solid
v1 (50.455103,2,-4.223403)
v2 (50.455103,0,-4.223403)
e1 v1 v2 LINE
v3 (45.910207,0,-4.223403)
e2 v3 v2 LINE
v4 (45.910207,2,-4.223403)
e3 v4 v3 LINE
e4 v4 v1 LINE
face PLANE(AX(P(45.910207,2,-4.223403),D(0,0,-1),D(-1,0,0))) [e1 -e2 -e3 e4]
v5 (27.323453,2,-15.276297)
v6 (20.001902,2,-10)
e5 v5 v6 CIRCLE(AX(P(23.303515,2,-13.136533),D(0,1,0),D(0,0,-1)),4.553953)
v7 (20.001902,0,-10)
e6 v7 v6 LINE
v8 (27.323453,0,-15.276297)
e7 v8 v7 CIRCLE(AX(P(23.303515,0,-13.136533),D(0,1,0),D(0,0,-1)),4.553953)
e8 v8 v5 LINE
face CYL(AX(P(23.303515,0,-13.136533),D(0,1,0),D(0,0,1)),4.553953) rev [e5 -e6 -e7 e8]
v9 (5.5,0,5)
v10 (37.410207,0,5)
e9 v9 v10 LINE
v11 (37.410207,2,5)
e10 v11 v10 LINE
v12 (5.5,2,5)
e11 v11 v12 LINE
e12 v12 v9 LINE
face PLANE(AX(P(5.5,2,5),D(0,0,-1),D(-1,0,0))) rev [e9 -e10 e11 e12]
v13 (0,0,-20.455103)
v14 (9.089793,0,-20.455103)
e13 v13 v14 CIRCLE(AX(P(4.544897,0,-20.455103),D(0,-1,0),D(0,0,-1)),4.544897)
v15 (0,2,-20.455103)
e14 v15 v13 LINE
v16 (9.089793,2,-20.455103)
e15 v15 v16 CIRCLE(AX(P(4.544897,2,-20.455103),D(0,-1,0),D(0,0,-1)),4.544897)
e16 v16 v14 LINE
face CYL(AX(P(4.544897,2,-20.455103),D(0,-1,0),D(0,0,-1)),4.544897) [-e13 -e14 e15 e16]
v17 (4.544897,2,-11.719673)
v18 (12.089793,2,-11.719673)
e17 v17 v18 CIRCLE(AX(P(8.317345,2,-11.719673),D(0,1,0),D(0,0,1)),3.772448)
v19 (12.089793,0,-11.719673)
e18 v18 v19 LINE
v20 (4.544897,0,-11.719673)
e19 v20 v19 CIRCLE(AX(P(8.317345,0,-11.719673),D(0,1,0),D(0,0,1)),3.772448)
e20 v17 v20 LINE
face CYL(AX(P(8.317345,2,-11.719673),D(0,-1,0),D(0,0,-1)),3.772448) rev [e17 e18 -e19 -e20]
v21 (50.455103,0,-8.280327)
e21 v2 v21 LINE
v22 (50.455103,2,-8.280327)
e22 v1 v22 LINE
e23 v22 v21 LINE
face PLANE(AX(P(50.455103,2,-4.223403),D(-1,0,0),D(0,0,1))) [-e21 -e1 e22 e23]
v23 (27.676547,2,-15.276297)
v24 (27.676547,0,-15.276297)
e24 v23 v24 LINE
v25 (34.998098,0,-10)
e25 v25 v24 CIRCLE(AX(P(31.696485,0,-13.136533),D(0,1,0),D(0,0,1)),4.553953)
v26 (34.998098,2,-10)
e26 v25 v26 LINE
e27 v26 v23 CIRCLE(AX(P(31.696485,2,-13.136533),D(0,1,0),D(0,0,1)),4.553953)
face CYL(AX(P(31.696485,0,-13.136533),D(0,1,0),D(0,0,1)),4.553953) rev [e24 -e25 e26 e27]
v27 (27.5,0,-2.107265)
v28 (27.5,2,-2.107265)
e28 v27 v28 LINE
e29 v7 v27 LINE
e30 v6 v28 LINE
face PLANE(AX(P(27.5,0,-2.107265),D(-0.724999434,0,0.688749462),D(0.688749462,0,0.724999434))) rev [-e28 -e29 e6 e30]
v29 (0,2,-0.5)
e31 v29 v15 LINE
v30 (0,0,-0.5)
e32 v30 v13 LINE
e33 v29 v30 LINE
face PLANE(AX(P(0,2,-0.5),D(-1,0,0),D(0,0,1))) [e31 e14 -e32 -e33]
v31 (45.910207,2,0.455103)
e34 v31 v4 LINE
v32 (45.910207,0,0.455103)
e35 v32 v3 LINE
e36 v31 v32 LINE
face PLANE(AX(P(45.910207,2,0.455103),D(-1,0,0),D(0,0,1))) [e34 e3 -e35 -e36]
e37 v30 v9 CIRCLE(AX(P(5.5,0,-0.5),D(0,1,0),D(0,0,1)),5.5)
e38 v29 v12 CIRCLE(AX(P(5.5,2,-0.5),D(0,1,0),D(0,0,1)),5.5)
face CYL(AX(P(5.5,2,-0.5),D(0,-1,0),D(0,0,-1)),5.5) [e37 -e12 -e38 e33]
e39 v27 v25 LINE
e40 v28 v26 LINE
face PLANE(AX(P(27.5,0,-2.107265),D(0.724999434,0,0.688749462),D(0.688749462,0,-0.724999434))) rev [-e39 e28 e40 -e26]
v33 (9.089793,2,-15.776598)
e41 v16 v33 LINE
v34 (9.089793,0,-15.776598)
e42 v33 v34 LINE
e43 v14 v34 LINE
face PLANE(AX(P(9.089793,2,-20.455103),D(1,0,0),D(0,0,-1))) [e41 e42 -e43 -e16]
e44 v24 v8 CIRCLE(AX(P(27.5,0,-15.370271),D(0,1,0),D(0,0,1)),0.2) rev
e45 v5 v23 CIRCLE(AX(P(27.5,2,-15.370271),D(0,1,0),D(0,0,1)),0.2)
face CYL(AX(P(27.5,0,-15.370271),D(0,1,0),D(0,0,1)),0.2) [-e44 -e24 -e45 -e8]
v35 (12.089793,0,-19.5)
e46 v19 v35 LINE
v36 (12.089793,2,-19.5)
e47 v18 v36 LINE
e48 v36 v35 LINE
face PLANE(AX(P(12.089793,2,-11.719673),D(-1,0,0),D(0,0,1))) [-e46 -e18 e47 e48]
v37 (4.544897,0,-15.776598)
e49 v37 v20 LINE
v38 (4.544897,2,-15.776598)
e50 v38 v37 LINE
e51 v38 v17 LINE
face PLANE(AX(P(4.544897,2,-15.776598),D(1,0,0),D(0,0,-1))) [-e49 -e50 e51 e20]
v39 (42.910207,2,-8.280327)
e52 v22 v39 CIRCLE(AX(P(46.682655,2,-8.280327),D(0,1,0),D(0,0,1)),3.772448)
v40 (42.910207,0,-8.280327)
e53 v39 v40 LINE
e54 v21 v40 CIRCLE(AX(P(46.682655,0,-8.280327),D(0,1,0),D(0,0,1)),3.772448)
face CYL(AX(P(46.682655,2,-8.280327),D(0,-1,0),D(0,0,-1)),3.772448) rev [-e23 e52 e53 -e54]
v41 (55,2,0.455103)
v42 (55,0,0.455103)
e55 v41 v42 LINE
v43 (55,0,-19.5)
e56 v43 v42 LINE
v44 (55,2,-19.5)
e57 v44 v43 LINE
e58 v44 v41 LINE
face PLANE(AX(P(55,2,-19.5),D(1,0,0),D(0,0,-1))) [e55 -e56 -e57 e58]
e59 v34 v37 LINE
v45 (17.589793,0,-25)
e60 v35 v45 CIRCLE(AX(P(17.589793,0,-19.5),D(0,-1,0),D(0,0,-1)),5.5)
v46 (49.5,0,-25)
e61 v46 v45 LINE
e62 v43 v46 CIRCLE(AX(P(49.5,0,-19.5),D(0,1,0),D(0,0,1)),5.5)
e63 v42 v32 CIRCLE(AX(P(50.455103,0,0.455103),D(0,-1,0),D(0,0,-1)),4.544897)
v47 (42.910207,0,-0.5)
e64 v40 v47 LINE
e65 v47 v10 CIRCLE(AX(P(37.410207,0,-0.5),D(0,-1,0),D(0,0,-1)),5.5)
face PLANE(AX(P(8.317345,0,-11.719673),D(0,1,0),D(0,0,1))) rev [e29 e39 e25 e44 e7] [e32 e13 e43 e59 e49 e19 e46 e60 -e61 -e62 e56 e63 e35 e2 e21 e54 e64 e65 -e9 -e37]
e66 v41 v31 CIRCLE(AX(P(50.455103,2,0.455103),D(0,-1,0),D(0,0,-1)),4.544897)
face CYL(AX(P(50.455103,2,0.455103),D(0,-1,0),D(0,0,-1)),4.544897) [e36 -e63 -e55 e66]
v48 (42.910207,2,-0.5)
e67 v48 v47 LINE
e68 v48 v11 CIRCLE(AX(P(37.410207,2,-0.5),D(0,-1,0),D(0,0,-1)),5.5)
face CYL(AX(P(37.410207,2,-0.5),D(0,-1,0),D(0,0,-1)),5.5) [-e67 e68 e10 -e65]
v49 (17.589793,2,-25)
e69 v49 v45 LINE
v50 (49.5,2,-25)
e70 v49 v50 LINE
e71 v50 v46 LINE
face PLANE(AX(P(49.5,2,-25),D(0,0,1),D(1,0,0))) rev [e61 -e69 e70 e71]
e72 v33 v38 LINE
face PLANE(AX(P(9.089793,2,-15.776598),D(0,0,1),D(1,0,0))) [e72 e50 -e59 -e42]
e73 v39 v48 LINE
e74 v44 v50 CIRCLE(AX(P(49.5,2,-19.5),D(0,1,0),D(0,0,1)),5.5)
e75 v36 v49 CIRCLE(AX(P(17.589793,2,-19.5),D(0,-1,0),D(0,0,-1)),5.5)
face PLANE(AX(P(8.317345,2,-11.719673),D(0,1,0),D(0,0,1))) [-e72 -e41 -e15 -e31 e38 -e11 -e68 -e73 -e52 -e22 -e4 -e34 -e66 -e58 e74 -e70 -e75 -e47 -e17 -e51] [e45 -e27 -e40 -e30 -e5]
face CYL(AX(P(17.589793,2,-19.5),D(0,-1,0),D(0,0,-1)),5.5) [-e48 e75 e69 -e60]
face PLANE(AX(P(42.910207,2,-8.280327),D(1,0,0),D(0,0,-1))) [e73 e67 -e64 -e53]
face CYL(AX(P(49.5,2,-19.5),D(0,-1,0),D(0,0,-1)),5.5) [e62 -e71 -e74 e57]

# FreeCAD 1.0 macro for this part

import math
import FreeCAD as App
import Part
import Sketcher


def edges_at(feature, points):
    """Names of the edges that pass closest to the given points."""
    edges = feature.Shape.Edges
    near = lambda p: min(range(len(edges)), key=lambda i: edges[i].distToShape(Part.Vertex(*p))[0])
    return sorted({f"Edge{near(p) + 1}" for p in points})

doc = App.newDocument("Part")
body = doc.addObject("PartDesign::Body", "Body")

sketch1 = body.newObject("Sketcher::SketchObject", "Sketch")
sketch1.AttachmentSupport = (doc.getObject("XZ_Plane"), [""])
sketch1.MapMode = "FlatFace"
sketch1.addGeometry([
    Part.LineSegment(App.Vector(0, -20.5, 0), App.Vector(0, -0.5, 0)),
    Part.ArcOfCircle(Part.Circle(App.Vector(5.5, -0.5, 0), App.Vector(0, 0, 1), 5.5), math.radians(90), math.radians(180)),
    Part.LineSegment(App.Vector(5.5, 5, 0), App.Vector(37.4, 5, 0)),
    Part.ArcOfCircle(Part.Circle(App.Vector(37.4, -0.5, 0), App.Vector(0, 0, 1), 5.5), math.radians(0), math.radians(90)),
    Part.LineSegment(App.Vector(42.9, -0.5, 0), App.Vector(42.9, -8.3, 0)),
    Part.ArcOfCircle(Part.Circle(App.Vector(46.7, -8.3, 0), App.Vector(0, 0, 1), 3.8), math.radians(180), math.radians(360)),
    Part.LineSegment(App.Vector(50.5, -8.3, 0), App.Vector(50.5, -4.2, 0)),
    Part.LineSegment(App.Vector(50.5, -4.2, 0), App.Vector(45.9, -4.2, 0)),
    Part.LineSegment(App.Vector(45.9, -4.2, 0), App.Vector(45.9, 0.5, 0)),
    Part.ArcOfCircle(Part.Circle(App.Vector(50.5, 0.5, 0), App.Vector(0, 0, 1), 4.5), math.radians(0), math.radians(180)),
    Part.LineSegment(App.Vector(55, 0.5, 0), App.Vector(55, -19.5, 0)),
    Part.ArcOfCircle(Part.Circle(App.Vector(49.5, -19.5, 0), App.Vector(0, 0, 1), 5.5), math.radians(-90), math.radians(0)),
    Part.LineSegment(App.Vector(49.5, -25, 0), App.Vector(17.6, -25, 0)),
    Part.ArcOfCircle(Part.Circle(App.Vector(17.6, -19.5, 0), App.Vector(0, 0, 1), 5.5), math.radians(-180), math.radians(-90)),
    Part.LineSegment(App.Vector(12.1, -19.5, 0), App.Vector(12.1, -11.7, 0)),
    Part.ArcOfCircle(Part.Circle(App.Vector(8.3, -11.7, 0), App.Vector(0, 0, 1), 3.8), math.radians(0), math.radians(180)),
    Part.LineSegment(App.Vector(4.5, -11.7, 0), App.Vector(4.5, -15.8, 0)),
    Part.LineSegment(App.Vector(4.5, -15.8, 0), App.Vector(9.1, -15.8, 0)),
    Part.LineSegment(App.Vector(9.1, -15.8, 0), App.Vector(9.1, -20.5, 0)),
    Part.ArcOfCircle(Part.Circle(App.Vector(4.5, -20.5, 0), App.Vector(0, 0, 1), 4.5), math.radians(180), math.radians(360)),
], False)
sketch1.addConstraint([
    Sketcher.Constraint("Tangent", 0, 2, 1, 2),
    Sketcher.Constraint("Tangent", 1, 1, 2, 1),
    Sketcher.Constraint("Tangent", 2, 2, 3, 2),
    Sketcher.Constraint("Tangent", 3, 1, 4, 1),
    Sketcher.Constraint("Tangent", 4, 2, 5, 1),
    Sketcher.Constraint("Tangent", 5, 2, 6, 1),
    Sketcher.Constraint("Coincident", 6, 2, 7, 1),
    Sketcher.Constraint("Coincident", 7, 2, 8, 1),
    Sketcher.Constraint("Tangent", 8, 2, 9, 2),
    Sketcher.Constraint("Tangent", 9, 1, 10, 1),
    Sketcher.Constraint("Tangent", 10, 2, 11, 2),
    Sketcher.Constraint("Tangent", 11, 1, 12, 1),
    Sketcher.Constraint("Tangent", 12, 2, 13, 2),
    Sketcher.Constraint("Tangent", 13, 1, 14, 1),
    Sketcher.Constraint("Tangent", 14, 2, 15, 1),
    Sketcher.Constraint("Tangent", 15, 2, 16, 1),
    Sketcher.Constraint("Coincident", 16, 2, 17, 1),
    Sketcher.Constraint("Coincident", 17, 2, 18, 1),
    Sketcher.Constraint("Tangent", 18, 2, 19, 2),
    Sketcher.Constraint("Tangent", 19, 1, 0, 1),
    Sketcher.Constraint("Vertical", 0),
    Sketcher.Constraint("Horizontal", 2),
    Sketcher.Constraint("Vertical", 4),
    Sketcher.Constraint("Vertical", 6),
    Sketcher.Constraint("Horizontal", 7),
    Sketcher.Constraint("Vertical", 8),
    Sketcher.Constraint("Vertical", 10),
    Sketcher.Constraint("Horizontal", 12),
    Sketcher.Constraint("Vertical", 14),
    Sketcher.Constraint("Vertical", 16),
    Sketcher.Constraint("Horizontal", 17),
    Sketcher.Constraint("Vertical", 18),
    Sketcher.Constraint("Equal", 1, 3),
    Sketcher.Constraint("Equal", 3, 11),
    Sketcher.Constraint("Equal", 11, 13),
    Sketcher.Constraint("Equal", 5, 15),
    Sketcher.Constraint("Equal", 9, 19),
    Sketcher.Constraint("PointOnObject", 0, 2, -2),
    Sketcher.Constraint("Vertical", 9, 3, 5, 2),
    Sketcher.Constraint("Vertical", 19, 3, 15, 2),
    Sketcher.Constraint("Equal", 0, 10),
    Sketcher.Constraint("Equal", 4, 14),
    Sketcher.Constraint("Equal", 6, 16),
    Sketcher.Constraint("Radius", 1, 5.5),
    Sketcher.Constraint("DistanceY", -1, 1, 1, 1, 5.0),
    Sketcher.Constraint("DistanceX", -1, 1, 9, 1, 55.0),
    Sketcher.Constraint("DistanceY", 11, 1, -1, 1, 25.0),
    Sketcher.Constraint("DistanceX", 3, 1, 7, 2, 3.0),
    Sketcher.Constraint("Radius", 5, 3.772448),
    Sketcher.Constraint("DistanceY", 0, 1, 0, 2, 19.955103),
    Sketcher.Constraint("DistanceY", 4, 2, 4, 1, 7.780327),
    Sketcher.Constraint("DistanceY", 6, 1, 6, 2, 4.056924),
])
pad1 = body.newObject("PartDesign::Pad", "Pad")
pad1.Profile = sketch1
pad1.Length = 2
pad1.Reversed = True

sketch2 = body.newObject("Sketcher::SketchObject", "Sketch001")
sketch2.AttachmentSupport = (doc.getObject("XZ_Plane"), [""])
sketch2.MapMode = "FlatFace"
sketch2.AttachmentOffset = App.Placement(App.Vector(0, 0, -2), App.Rotation())
sketch2.addGeometry([
    Part.LineSegment(App.Vector(20, -10, 0), App.Vector(27.5, -2.1, 0)),
    Part.LineSegment(App.Vector(27.5, -2.1, 0), App.Vector(35, -10, 0)),
    Part.ArcOfCircle(Part.Circle(App.Vector(31.7, -13.1, 0), App.Vector(0, 0, 1), 4.6), math.radians(-157), math.radians(44)),
    Part.ArcOfCircle(Part.Circle(App.Vector(23.3, -13.1, 0), App.Vector(0, 0, 1), 4.6), math.radians(136), math.radians(337)),
], False)
sketch2.addConstraint([
    Sketcher.Constraint("Coincident", 0, 2, 1, 1),
    Sketcher.Constraint("Tangent", 1, 2, 2, 2),
    Sketcher.Constraint("Coincident", 2, 1, 3, 2),
    Sketcher.Constraint("Tangent", 3, 1, 0, 1),
    Sketcher.Constraint("Equal", 2, 3),
    Sketcher.Constraint("Horizontal", 2, 3, 3, 3),
    Sketcher.Constraint("Horizontal", 1, 2, 3, 1),
    Sketcher.Constraint("DistanceY", 1, 2, -1, 1, 10.0),
    Sketcher.Constraint("DistanceX", -1, 1, 0, 2, 27.5),
    Sketcher.Constraint("Radius", 2, 4.553953),
    Sketcher.Constraint("DistanceX", -1, 1, 1, 2, 34.998098),
    Sketcher.Constraint("Distance", 0, 10.88654),
])
pocket1 = body.newObject("PartDesign::Pocket", "Pocket")
pocket1.Profile = sketch2
pocket1.Type = "ThroughAll"
pocket1.Reversed = True
doc.recompute()

fillet = body.newObject("PartDesign::Fillet", "Fillet")
fillet.Base = (pocket1, edges_at(pocket1, [(27.5, 1, -14.905)]))
fillet.Radius = 0.2

doc.recompute()
